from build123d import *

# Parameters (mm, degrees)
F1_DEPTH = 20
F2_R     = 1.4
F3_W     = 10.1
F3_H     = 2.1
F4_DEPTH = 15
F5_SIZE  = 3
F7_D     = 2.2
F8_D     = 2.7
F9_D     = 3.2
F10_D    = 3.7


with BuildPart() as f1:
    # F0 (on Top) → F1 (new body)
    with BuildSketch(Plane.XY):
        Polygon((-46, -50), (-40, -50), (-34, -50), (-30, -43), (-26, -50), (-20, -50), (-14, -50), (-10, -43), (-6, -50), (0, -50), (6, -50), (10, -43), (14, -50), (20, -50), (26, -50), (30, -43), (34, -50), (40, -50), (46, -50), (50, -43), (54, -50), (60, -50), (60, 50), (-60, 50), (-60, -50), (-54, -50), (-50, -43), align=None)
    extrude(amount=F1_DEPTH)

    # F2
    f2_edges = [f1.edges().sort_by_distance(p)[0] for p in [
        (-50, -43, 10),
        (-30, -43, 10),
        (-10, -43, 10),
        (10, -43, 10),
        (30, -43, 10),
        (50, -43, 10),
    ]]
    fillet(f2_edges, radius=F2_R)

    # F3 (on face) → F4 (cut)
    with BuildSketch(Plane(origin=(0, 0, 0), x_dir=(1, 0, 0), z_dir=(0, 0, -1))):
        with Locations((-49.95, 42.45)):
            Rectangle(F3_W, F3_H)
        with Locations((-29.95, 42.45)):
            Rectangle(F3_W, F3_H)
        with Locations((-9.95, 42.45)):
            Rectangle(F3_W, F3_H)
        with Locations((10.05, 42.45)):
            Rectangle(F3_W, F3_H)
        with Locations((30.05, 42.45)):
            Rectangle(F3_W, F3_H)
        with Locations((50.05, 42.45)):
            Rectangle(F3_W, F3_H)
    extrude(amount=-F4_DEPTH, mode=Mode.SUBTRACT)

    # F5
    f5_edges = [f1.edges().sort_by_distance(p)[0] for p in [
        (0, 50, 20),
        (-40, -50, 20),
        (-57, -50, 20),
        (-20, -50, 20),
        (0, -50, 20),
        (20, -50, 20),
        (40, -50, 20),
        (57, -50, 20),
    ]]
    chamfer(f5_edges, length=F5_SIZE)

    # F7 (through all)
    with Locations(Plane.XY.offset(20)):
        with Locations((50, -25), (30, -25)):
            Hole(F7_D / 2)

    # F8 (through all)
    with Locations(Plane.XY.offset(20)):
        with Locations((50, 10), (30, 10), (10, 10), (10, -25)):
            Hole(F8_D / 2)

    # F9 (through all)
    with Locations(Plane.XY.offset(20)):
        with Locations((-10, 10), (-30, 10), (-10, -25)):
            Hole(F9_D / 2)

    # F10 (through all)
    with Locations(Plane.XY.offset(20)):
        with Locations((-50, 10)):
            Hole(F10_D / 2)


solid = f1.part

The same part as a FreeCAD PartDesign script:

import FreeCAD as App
import Part
import Sketcher

V = App.Vector
Q = App.Units.Quantity


def edges_at(feature, points):
    """Names of the edges that pass closest to the given points."""
    edges = feature.Shape.Edges
    near = lambda p: min(range(len(edges)), key=lambda i: edges[i].distToShape(Part.Vertex(*p))[0])
    return sorted({f"Edge{near(p) + 1}" for p in points})

doc = App.newDocument("Part")
params = doc.addObject("Spreadsheet::Sheet", "Params")
for row, (alias, value) in enumerate([
    ("sketch1_width", "12 mm"),
    ("sketch1_width2", "6 mm"),
    ("sketch1_width3", "120 mm"),
    ("sketch1_height", "100 mm"),
    ("pad1_length", "20 mm"),
    ("fillet_radius", "1.4 mm"),
    ("sketch2_width", "10.1 mm"),
    ("sketch2_height", "2.1 mm"),
    ("pocket1_length", "15 mm"),
    ("chamfer_size", "3 mm"),
    ("sketch3_diameter", "2.2 mm"),
    ("hole_diameter", "2.2 mm"),
    ("sketch4_diameter", "2.7 mm"),
    ("hole2_diameter", "2.7 mm"),
    ("sketch5_diameter", "3.2 mm"),
    ("hole3_diameter", "3.2 mm"),
    ("sketch6_diameter", "3.7 mm"),
    ("hole4_diameter", "3.7 mm"),
], start=1):
    params.set(f"A{row}", alias)
    params.set(f"B{row}", "=" + value)
    params.setAlias(f"B{row}", alias)

body = doc.addObject("PartDesign::Body", "Body")

sketch1 = body.newObject("Sketcher::SketchObject", "Sketch")
sketch1.AttachmentSupport = (doc.getObject("XY_Plane"), [""])
sketch1.MapMode = "FlatFace"
sketch1.addGeometry([
    Part.LineSegment(V(-46, -50, 0), V(-34, -50, 0)),
    Part.LineSegment(V(-34, -50, 0), V(-30, -43, 0)),
    Part.LineSegment(V(-30, -43, 0), V(-26, -50, 0)),
    Part.LineSegment(V(-26, -50, 0), V(-14, -50, 0)),
    Part.LineSegment(V(-14, -50, 0), V(-10, -43, 0)),
    Part.LineSegment(V(-10, -43, 0), V(-6, -50, 0)),
    Part.LineSegment(V(-6, -50, 0), V(6, -50, 0)),
    Part.LineSegment(V(6, -50, 0), V(10, -43, 0)),
    Part.LineSegment(V(10, -43, 0), V(14, -50, 0)),
    Part.LineSegment(V(14, -50, 0), V(26, -50, 0)),
    Part.LineSegment(V(26, -50, 0), V(30, -43, 0)),
    Part.LineSegment(V(30, -43, 0), V(34, -50, 0)),
    Part.LineSegment(V(34, -50, 0), V(46, -50, 0)),
    Part.LineSegment(V(46, -50, 0), V(50, -43, 0)),
    Part.LineSegment(V(50, -43, 0), V(54, -50, 0)),
    Part.LineSegment(V(54, -50, 0), V(60, -50, 0)),
    Part.LineSegment(V(60, -50, 0), V(60, 50, 0)),
    Part.LineSegment(V(60, 50, 0), V(-60, 50, 0)),
    Part.LineSegment(V(-60, 50, 0), V(-60, -50, 0)),
    Part.LineSegment(V(-60, -50, 0), V(-54, -50, 0)),
    Part.LineSegment(V(-54, -50, 0), V(-50, -43, 0)),
    Part.LineSegment(V(-50, -43, 0), V(-46, -50, 0)),
], False)
sketch1.addConstraint([
    Sketcher.Constraint("Coincident", 0, 2, 1, 1),
    Sketcher.Constraint("Coincident", 1, 2, 2, 1),
    Sketcher.Constraint("Coincident", 2, 2, 3, 1),
    Sketcher.Constraint("Coincident", 3, 2, 4, 1),
    Sketcher.Constraint("Coincident", 4, 2, 5, 1),
    Sketcher.Constraint("Coincident", 5, 2, 6, 1),
    Sketcher.Constraint("Coincident", 6, 2, 7, 1),
    Sketcher.Constraint("Coincident", 7, 2, 8, 1),
    Sketcher.Constraint("Coincident", 8, 2, 9, 1),
    Sketcher.Constraint("Coincident", 9, 2, 10, 1),
    Sketcher.Constraint("Coincident", 10, 2, 11, 1),
    Sketcher.Constraint("Coincident", 11, 2, 12, 1),
    Sketcher.Constraint("Coincident", 12, 2, 13, 1),
    Sketcher.Constraint("Coincident", 13, 2, 14, 1),
    Sketcher.Constraint("Coincident", 14, 2, 15, 1),
    Sketcher.Constraint("Coincident", 15, 2, 16, 1),
    Sketcher.Constraint("Coincident", 16, 2, 17, 1),
    Sketcher.Constraint("Coincident", 17, 2, 18, 1),
    Sketcher.Constraint("Coincident", 18, 2, 19, 1),
    Sketcher.Constraint("Coincident", 19, 2, 20, 1),
    Sketcher.Constraint("Coincident", 20, 2, 21, 1),
    Sketcher.Constraint("Coincident", 21, 2, 0, 1),
    Sketcher.Constraint("Horizontal", 0),
    Sketcher.Constraint("Horizontal", 3),
    Sketcher.Constraint("Horizontal", 6),
    Sketcher.Constraint("Horizontal", 9),
    Sketcher.Constraint("Horizontal", 12),
    Sketcher.Constraint("Horizontal", 15),
    Sketcher.Constraint("Vertical", 16),
    Sketcher.Constraint("Horizontal", 17),
    Sketcher.Constraint("Vertical", 18),
    Sketcher.Constraint("Horizontal", 19),
    Sketcher.Constraint("Symmetric", 15, 2, 17, 2, -1, 1),
    Sketcher.Constraint("Symmetric", 4, 2, 7, 2, -2),
    Sketcher.Constraint("Symmetric", 3, 2, 8, 2, -2),
    Sketcher.Constraint("Symmetric", 1, 2, 10, 2, -2),
    Sketcher.Constraint("Symmetric", 0, 2, 11, 2, -2),
    Sketcher.Constraint("Symmetric", 14, 2, 19, 2, -2),
    Sketcher.Constraint("Symmetric", 13, 2, 20, 2, -2),
    Sketcher.Constraint("Parallel", 1, 4),
    Sketcher.Constraint("Parallel", 2, 5),
    Sketcher.Constraint("Parallel", 4, 7),
    Sketcher.Constraint("Parallel", 5, 8),
    Sketcher.Constraint("Parallel", 7, 10),
    Sketcher.Constraint("Parallel", 10, 13),
    Sketcher.Constraint("Parallel", 11, 14),
    Sketcher.Constraint("Parallel", 14, 21),
    Sketcher.Constraint("Horizontal", 0, 2, 2, 2),
    Sketcher.Constraint("Horizontal", 1, 2, 4, 2),
    Sketcher.Constraint("Horizontal", 3, 2, 5, 2),
    Sketcher.Constraint("Horizontal", 10, 2, 13, 2),
    Sketcher.Constraint("Horizontal", 12, 2, 14, 2),
    Sketcher.Constraint("Equal", 0, 3),
    Sketcher.Constraint("Equal", 3, 6),
    Sketcher.Constraint("DistanceX", 0, 1, 0, 2, Q("12 mm")),
    Sketcher.Constraint("DistanceX", 15, 1, 15, 2, Q("6 mm")),
    Sketcher.Constraint("DistanceX", 17, 2, 17, 1, Q("120 mm")),
    Sketcher.Constraint("DistanceY", 16, 1, 16, 2, Q("100 mm")),
    Sketcher.Constraint("DistanceY", 1, 2, -1, 1, Q("43 mm")),
])
sketch1.setExpression("Constraints[54]", "Params.sketch1_width")
sketch1.setExpression("Constraints[55]", "Params.sketch1_width2")
sketch1.setExpression("Constraints[56]", "Params.sketch1_width3")
sketch1.setExpression("Constraints[57]", "Params.sketch1_height")
pad1 = body.newObject("PartDesign::Pad", "Pad")
pad1.Profile = sketch1
pad1.setExpression("Length", "Params.pad1_length")
doc.recompute()

fillet = body.newObject("PartDesign::Fillet", "Fillet")
fillet.Base = (pad1, edges_at(pad1, [
    (-50, -43, 10),
    (-30, -43, 10),
    (-10, -43, 10),
    (10, -43, 10),
    (30, -43, 10),
    (50, -43, 10),
]))
fillet.setExpression("Radius", "Params.fillet_radius")

sketch2 = body.newObject("Sketcher::SketchObject", "Sketch001")
sketch2.AttachmentSupport = (doc.getObject("XY_Plane"), [""])
sketch2.MapMode = "FlatFace"
sketch2.addGeometry([
    Part.LineSegment(V(-55, -43.5, 0), V(-55, -41.4, 0)),
    Part.LineSegment(V(-55, -41.4, 0), V(-44.9, -41.4, 0)),
    Part.LineSegment(V(-44.9, -41.4, 0), V(-44.9, -43.5, 0)),
    Part.LineSegment(V(-44.9, -43.5, 0), V(-55, -43.5, 0)),
    Part.LineSegment(V(-35, -43.5, 0), V(-35, -41.4, 0)),
    Part.LineSegment(V(-35, -41.4, 0), V(-24.9, -41.4, 0)),
    Part.LineSegment(V(-24.9, -41.4, 0), V(-24.9, -43.5, 0)),
    Part.LineSegment(V(-24.9, -43.5, 0), V(-35, -43.5, 0)),
    Part.LineSegment(V(-15, -43.5, 0), V(-15, -41.4, 0)),
    Part.LineSegment(V(-15, -41.4, 0), V(-4.9, -41.4, 0)),
    Part.LineSegment(V(-4.9, -41.4, 0), V(-4.9, -43.5, 0)),
    Part.LineSegment(V(-4.9, -43.5, 0), V(-15, -43.5, 0)),
    Part.LineSegment(V(5, -43.5, 0), V(5, -41.4, 0)),
    Part.LineSegment(V(5, -41.4, 0), V(15.1, -41.4, 0)),
    Part.LineSegment(V(15.1, -41.4, 0), V(15.1, -43.5, 0)),
    Part.LineSegment(V(15.1, -43.5, 0), V(5, -43.5, 0)),
    Part.LineSegment(V(25, -43.5, 0), V(25, -41.4, 0)),
    Part.LineSegment(V(25, -41.4, 0), V(35.1, -41.4, 0)),
    Part.LineSegment(V(35.1, -41.4, 0), V(35.1, -43.5, 0)),
    Part.LineSegment(V(35.1, -43.5, 0), V(25, -43.5, 0)),
    Part.LineSegment(V(45, -43.5, 0), V(45, -41.4, 0)),
    Part.LineSegment(V(45, -41.4, 0), V(55.1, -41.4, 0)),
    Part.LineSegment(V(55.1, -41.4, 0), V(55.1, -43.5, 0)),
    Part.LineSegment(V(55.1, -43.5, 0), V(45, -43.5, 0)),
], False)
sketch2.addConstraint([
    Sketcher.Constraint("Coincident", 0, 2, 1, 1),
    Sketcher.Constraint("Coincident", 1, 2, 2, 1),
    Sketcher.Constraint("Coincident", 2, 2, 3, 1),
    Sketcher.Constraint("Coincident", 3, 2, 0, 1),
    Sketcher.Constraint("Coincident", 4, 2, 5, 1),
    Sketcher.Constraint("Coincident", 5, 2, 6, 1),
    Sketcher.Constraint("Coincident", 6, 2, 7, 1),
    Sketcher.Constraint("Coincident", 7, 2, 4, 1),
    Sketcher.Constraint("Coincident", 8, 2, 9, 1),
    Sketcher.Constraint("Coincident", 9, 2, 10, 1),
    Sketcher.Constraint("Coincident", 10, 2, 11, 1),
    Sketcher.Constraint("Coincident", 11, 2, 8, 1),
    Sketcher.Constraint("Coincident", 12, 2, 13, 1),
    Sketcher.Constraint("Coincident", 13, 2, 14, 1),
    Sketcher.Constraint("Coincident", 14, 2, 15, 1),
    Sketcher.Constraint("Coincident", 15, 2, 12, 1),
    Sketcher.Constraint("Coincident", 16, 2, 17, 1),
    Sketcher.Constraint("Coincident", 17, 2, 18, 1),
    Sketcher.Constraint("Coincident", 18, 2, 19, 1),
    Sketcher.Constraint("Coincident", 19, 2, 16, 1),
    Sketcher.Constraint("Coincident", 20, 2, 21, 1),
    Sketcher.Constraint("Coincident", 21, 2, 22, 1),
    Sketcher.Constraint("Coincident", 22, 2, 23, 1),
    Sketcher.Constraint("Coincident", 23, 2, 20, 1),
    Sketcher.Constraint("Vertical", 0),
    Sketcher.Constraint("Horizontal", 1),
    Sketcher.Constraint("Vertical", 2),
    Sketcher.Constraint("Horizontal", 3),
    Sketcher.Constraint("Vertical", 4),
    Sketcher.Constraint("Horizontal", 5),
    Sketcher.Constraint("Vertical", 6),
    Sketcher.Constraint("Horizontal", 7),
    Sketcher.Constraint("Vertical", 8),
    Sketcher.Constraint("Horizontal", 9),
    Sketcher.Constraint("Vertical", 10),
    Sketcher.Constraint("Horizontal", 11),
    Sketcher.Constraint("Vertical", 12),
    Sketcher.Constraint("Horizontal", 13),
    Sketcher.Constraint("Vertical", 14),
    Sketcher.Constraint("Horizontal", 15),
    Sketcher.Constraint("Vertical", 16),
    Sketcher.Constraint("Horizontal", 17),
    Sketcher.Constraint("Vertical", 18),
    Sketcher.Constraint("Horizontal", 19),
    Sketcher.Constraint("Vertical", 20),
    Sketcher.Constraint("Horizontal", 21),
    Sketcher.Constraint("Vertical", 22),
    Sketcher.Constraint("Horizontal", 23),
    Sketcher.Constraint("Horizontal", 1, 2, 4, 2),
    Sketcher.Constraint("Horizontal", 3, 2, 6, 2),
    Sketcher.Constraint("Horizontal", 5, 2, 8, 2),
    Sketcher.Constraint("Horizontal", 7, 2, 10, 2),
    Sketcher.Constraint("Horizontal", 9, 2, 12, 2),
    Sketcher.Constraint("Horizontal", 11, 2, 14, 2),
    Sketcher.Constraint("Horizontal", 13, 2, 16, 2),
    Sketcher.Constraint("Horizontal", 15, 2, 18, 2),
    Sketcher.Constraint("Horizontal", 17, 2, 20, 2),
    Sketcher.Constraint("Horizontal", 19, 2, 22, 2),
    Sketcher.Constraint("Equal", 3, 5),
    Sketcher.Constraint("Equal", 7, 9),
    Sketcher.Constraint("Equal", 11, 13),
    Sketcher.Constraint("Equal", 15, 17),
    Sketcher.Constraint("Equal", 19, 21),
    Sketcher.Constraint("DistanceX", 1, 1, 1, 2, Q("10.1 mm")),
    Sketcher.Constraint("DistanceY", 0, 1, 0, 2, Q("2.1 mm")),
    Sketcher.Constraint("DistanceX", 0, 2, -1, 1, Q("55 mm")),
    Sketcher.Constraint("DistanceX", 4, 2, -1, 1, Q("35 mm")),
    Sketcher.Constraint("DistanceX", 8, 2, -1, 1, Q("15 mm")),
    Sketcher.Constraint("DistanceX", -1, 1, 12, 2, Q("5 mm")),
    Sketcher.Constraint("DistanceX", -1, 1, 16, 2, Q("25 mm")),
    Sketcher.Constraint("DistanceX", -1, 1, 20, 2, Q("45 mm")),
    Sketcher.Constraint("DistanceY", 0, 2, -1, 1, Q("41.4 mm")),
])
sketch2.setExpression("Constraints[63]", "Params.sketch2_width")
sketch2.setExpression("Constraints[64]", "Params.sketch2_height")
pocket1 = body.newObject("PartDesign::Pocket", "Pocket")
pocket1.Profile = sketch2
pocket1.setExpression("Length", "Params.pocket1_length")
pocket1.Reversed = True
doc.recompute()

chamfer = body.newObject("PartDesign::Chamfer", "Chamfer")
chamfer.Base = (pocket1, edges_at(pocket1, [
    (0, 50, 20),
    (-40, -50, 20),
    (-57, -50, 20),
    (-20, -50, 20),
    (0, -50, 20),
    (20, -50, 20),
    (40, -50, 20),
    (57, -50, 20),
]))
chamfer.setExpression("Size", "Params.chamfer_size")

sketch3 = body.newObject("Sketcher::SketchObject", "Sketch002")
sketch3.AttachmentSupport = (doc.getObject("XY_Plane"), [""])
sketch3.MapMode = "FlatFace"
sketch3.AttachmentOffset = App.Placement(V(0, 0, 20), App.Rotation())
sketch3.addGeometry([
    Part.Circle(V(50, -25, 0), V(0, 0, 1), 1.1),
    Part.Circle(V(30, -25, 0), V(0, 0, 1), 1.1),
], False)
sketch3.addConstraint([
    Sketcher.Constraint("Equal", 0, 1),
    Sketcher.Constraint("Horizontal", 0, 3, 1, 3),
    Sketcher.Constraint("Diameter", 0, Q("2.2 mm")),
    Sketcher.Constraint("DistanceX", -1, 1, 0, 3, Q("50 mm")),
    Sketcher.Constraint("DistanceY", 0, 3, -1, 1, Q("25 mm")),
    Sketcher.Constraint("DistanceX", -1, 1, 1, 3, Q("30 mm")),
])
sketch3.setExpression("Constraints[2]", "Params.sketch3_diameter")
doc.recompute()
hole = body.newObject("PartDesign::Hole", "Hole")
hole.Profile = sketch3
hole.ThreadType = "None"
hole.setExpression("Diameter", "Params.hole_diameter")
hole.DepthType = "ThroughAll"

sketch4 = body.newObject("Sketcher::SketchObject", "Sketch003")
sketch4.AttachmentSupport = (doc.getObject("XY_Plane"), [""])
sketch4.MapMode = "FlatFace"
sketch4.AttachmentOffset = App.Placement(V(0, 0, 20), App.Rotation())
sketch4.addGeometry([
    Part.Circle(V(50, 10, 0), V(0, 0, 1), 1.4),
    Part.Circle(V(30, 10, 0), V(0, 0, 1), 1.4),
    Part.Circle(V(10, 10, 0), V(0, 0, 1), 1.4),
    Part.Circle(V(10, -25, 0), V(0, 0, 1), 1.4),
], False)
sketch4.addConstraint([
    Sketcher.Constraint("Equal", 0, 1),
    Sketcher.Constraint("Equal", 1, 2),
    Sketcher.Constraint("Equal", 2, 3),
    Sketcher.Constraint("Horizontal", 0, 3, 1, 3),
    Sketcher.Constraint("Horizontal", 1, 3, 2, 3),
    Sketcher.Constraint("Vertical", 2, 3, 3, 3),
    Sketcher.Constraint("Diameter", 0, Q("2.7 mm")),
    Sketcher.Constraint("DistanceX", -1, 1, 0, 3, Q("50 mm")),
    Sketcher.Constraint("DistanceY", -1, 1, 0, 3, Q("10 mm")),
    Sketcher.Constraint("DistanceX", -1, 1, 1, 3, Q("30 mm")),
    Sketcher.Constraint("DistanceX", -1, 1, 2, 3, Q("10 mm")),
    Sketcher.Constraint("DistanceY", 3, 3, -1, 1, Q("25 mm")),
])
sketch4.setExpression("Constraints[6]", "Params.sketch4_diameter")
doc.recompute()
hole2 = body.newObject("PartDesign::Hole", "Hole001")
hole2.Profile = sketch4
hole2.ThreadType = "None"
hole2.setExpression("Diameter", "Params.hole2_diameter")
hole2.DepthType = "ThroughAll"

sketch5 = body.newObject("Sketcher::SketchObject", "Sketch004")
sketch5.AttachmentSupport = (doc.getObject("XY_Plane"), [""])
sketch5.MapMode = "FlatFace"
sketch5.AttachmentOffset = App.Placement(V(0, 0, 20), App.Rotation())
sketch5.addGeometry([
    Part.Circle(V(-10, 10, 0), V(0, 0, 1), 1.6),
    Part.Circle(V(-30, 10, 0), V(0, 0, 1), 1.6),
    Part.Circle(V(-10, -25, 0), V(0, 0, 1), 1.6),
], False)
sketch5.addConstraint([
    Sketcher.Constraint("Equal", 0, 1),
    Sketcher.Constraint("Equal", 1, 2),
    Sketcher.Constraint("Horizontal", 0, 3, 1, 3),
    Sketcher.Constraint("Vertical", 0, 3, 2, 3),
    Sketcher.Constraint("Diameter", 0, Q("3.2 mm")),
    Sketcher.Constraint("DistanceX", 0, 3, -1, 1, Q("10 mm")),
    Sketcher.Constraint("DistanceY", -1, 1, 0, 3, Q("10 mm")),
    Sketcher.Constraint("DistanceX", 1, 3, -1, 1, Q("30 mm")),
    Sketcher.Constraint("DistanceY", 2, 3, -1, 1, Q("25 mm")),
])
sketch5.setExpression("Constraints[4]", "Params.sketch5_diameter")
doc.recompute()
hole3 = body.newObject("PartDesign::Hole", "Hole002")
hole3.Profile = sketch5
hole3.ThreadType = "None"
hole3.setExpression("Diameter", "Params.hole3_diameter")
hole3.DepthType = "ThroughAll"

sketch6 = body.newObject("Sketcher::SketchObject", "Sketch005")
sketch6.AttachmentSupport = (doc.getObject("XY_Plane"), [""])
sketch6.MapMode = "FlatFace"
sketch6.AttachmentOffset = App.Placement(V(0, 0, 20), App.Rotation())
sketch6.addGeometry(Part.Circle(V(-50, 10, 0), V(0, 0, 1), 1.9), False)
sketch6.addConstraint([
    Sketcher.Constraint("Diameter", 0, Q("3.7 mm")),
    Sketcher.Constraint("DistanceX", 0, 3, -1, 1, Q("50 mm")),
    Sketcher.Constraint("DistanceY", -1, 1, 0, 3, Q("10 mm")),
])
sketch6.setExpression("Constraints[0]", "Params.sketch6_diameter")
doc.recompute()
hole4 = body.newObject("PartDesign::Hole", "Hole003")
hole4.Profile = sketch6
hole4.ThreadType = "None"
hole4.setExpression("Diameter", "Params.hole4_diameter")
hole4.DepthType = "ThroughAll"

doc.recompute()
